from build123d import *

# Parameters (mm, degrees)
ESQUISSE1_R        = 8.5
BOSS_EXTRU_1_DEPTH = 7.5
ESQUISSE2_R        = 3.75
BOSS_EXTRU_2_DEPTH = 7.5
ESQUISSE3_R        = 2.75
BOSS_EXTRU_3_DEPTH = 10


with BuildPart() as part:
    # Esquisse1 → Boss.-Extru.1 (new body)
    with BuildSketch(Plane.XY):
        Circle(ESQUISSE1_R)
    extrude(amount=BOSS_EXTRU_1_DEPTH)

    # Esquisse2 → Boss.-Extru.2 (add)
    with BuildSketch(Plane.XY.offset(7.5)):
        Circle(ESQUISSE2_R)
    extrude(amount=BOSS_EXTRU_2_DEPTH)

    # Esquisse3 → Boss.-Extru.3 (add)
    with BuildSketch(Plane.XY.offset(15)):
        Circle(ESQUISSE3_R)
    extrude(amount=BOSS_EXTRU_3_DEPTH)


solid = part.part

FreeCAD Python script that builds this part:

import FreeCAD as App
import Part
import Sketcher
from FreeCAD import Vector

doc = App.newDocument("Part")
params = doc.addObject("Spreadsheet::Sheet", "Params")
for row, (alias, value) in enumerate([
    ("sketch1_diameter", "17 mm"),
    ("pad1_length", "7.5 mm"),
    ("sketch2_diameter", "7.5 mm"),
    ("pad2_length", "7.5 mm"),
    ("sketch3_diameter", "5.5 mm"),
    ("pad3_length", "10 mm"),
], start=1):
    params.set(f"A{row}", alias)
    params.set(f"B{row}", "=" + value)
    params.setAlias(f"B{row}", alias)

body = doc.addObject("PartDesign::Body", "Body")

sketch1 = body.newObject("Sketcher::SketchObject", "Sketch")
sketch1.AttachmentSupport = (doc.getObject("XY_Plane"), [""])
sketch1.MapMode = "FlatFace"
sketch1.addGeometry(Part.Circle(Vector(0, 0, 0), Vector(0, 0, 1), 8), False)
sketch1.addConstraint(Sketcher.Constraint("Coincident", 0, 3, -1, 1))
sketch1.addConstraint(Sketcher.Constraint("Diameter", 0, 17.0))
sketch1.setExpression("Constraints[1]", "Params.sketch1_diameter")
pad1 = body.newObject("PartDesign::Pad", "Pad")
pad1.Profile = sketch1
pad1.setExpression("Length", "Params.pad1_length")

sketch2 = body.newObject("Sketcher::SketchObject", "Sketch001")
sketch2.AttachmentSupport = (doc.getObject("XY_Plane"), [""])
sketch2.MapMode = "FlatFace"
sketch2.AttachmentOffset = App.Placement(Vector(0, 0, 7.5), App.Rotation())
sketch2.addGeometry(Part.Circle(Vector(0, 0, 0), Vector(0, 0, 1), 3.8), False)
sketch2.addConstraint(Sketcher.Constraint("Coincident", 0, 3, -1, 1))
sketch2.addConstraint(Sketcher.Constraint("Diameter", 0, 7.5))
sketch2.setExpression("Constraints[1]", "Params.sketch2_diameter")
pad2 = body.newObject("PartDesign::Pad", "Pad001")
pad2.Profile = sketch2
pad2.setExpression("Length", "Params.pad2_length")

sketch3 = body.newObject("Sketcher::SketchObject", "Sketch002")
sketch3.AttachmentSupport = (doc.getObject("XY_Plane"), [""])
sketch3.MapMode = "FlatFace"
sketch3.AttachmentOffset = App.Placement(Vector(0, 0, 15), App.Rotation())
sketch3.addGeometry(Part.Circle(Vector(0, 0, 0), Vector(0, 0, 1), 2.8), False)
sketch3.addConstraint(Sketcher.Constraint("Coincident", 0, 3, -1, 1))
sketch3.addConstraint(Sketcher.Constraint("Diameter", 0, 5.5))
sketch3.setExpression("Constraints[1]", "Params.sketch3_diameter")
pad3 = body.newObject("PartDesign::Pad", "Pad002")
pad3.Profile = sketch3
pad3.setExpression("Length", "Params.pad3_length")

doc.recompute()
